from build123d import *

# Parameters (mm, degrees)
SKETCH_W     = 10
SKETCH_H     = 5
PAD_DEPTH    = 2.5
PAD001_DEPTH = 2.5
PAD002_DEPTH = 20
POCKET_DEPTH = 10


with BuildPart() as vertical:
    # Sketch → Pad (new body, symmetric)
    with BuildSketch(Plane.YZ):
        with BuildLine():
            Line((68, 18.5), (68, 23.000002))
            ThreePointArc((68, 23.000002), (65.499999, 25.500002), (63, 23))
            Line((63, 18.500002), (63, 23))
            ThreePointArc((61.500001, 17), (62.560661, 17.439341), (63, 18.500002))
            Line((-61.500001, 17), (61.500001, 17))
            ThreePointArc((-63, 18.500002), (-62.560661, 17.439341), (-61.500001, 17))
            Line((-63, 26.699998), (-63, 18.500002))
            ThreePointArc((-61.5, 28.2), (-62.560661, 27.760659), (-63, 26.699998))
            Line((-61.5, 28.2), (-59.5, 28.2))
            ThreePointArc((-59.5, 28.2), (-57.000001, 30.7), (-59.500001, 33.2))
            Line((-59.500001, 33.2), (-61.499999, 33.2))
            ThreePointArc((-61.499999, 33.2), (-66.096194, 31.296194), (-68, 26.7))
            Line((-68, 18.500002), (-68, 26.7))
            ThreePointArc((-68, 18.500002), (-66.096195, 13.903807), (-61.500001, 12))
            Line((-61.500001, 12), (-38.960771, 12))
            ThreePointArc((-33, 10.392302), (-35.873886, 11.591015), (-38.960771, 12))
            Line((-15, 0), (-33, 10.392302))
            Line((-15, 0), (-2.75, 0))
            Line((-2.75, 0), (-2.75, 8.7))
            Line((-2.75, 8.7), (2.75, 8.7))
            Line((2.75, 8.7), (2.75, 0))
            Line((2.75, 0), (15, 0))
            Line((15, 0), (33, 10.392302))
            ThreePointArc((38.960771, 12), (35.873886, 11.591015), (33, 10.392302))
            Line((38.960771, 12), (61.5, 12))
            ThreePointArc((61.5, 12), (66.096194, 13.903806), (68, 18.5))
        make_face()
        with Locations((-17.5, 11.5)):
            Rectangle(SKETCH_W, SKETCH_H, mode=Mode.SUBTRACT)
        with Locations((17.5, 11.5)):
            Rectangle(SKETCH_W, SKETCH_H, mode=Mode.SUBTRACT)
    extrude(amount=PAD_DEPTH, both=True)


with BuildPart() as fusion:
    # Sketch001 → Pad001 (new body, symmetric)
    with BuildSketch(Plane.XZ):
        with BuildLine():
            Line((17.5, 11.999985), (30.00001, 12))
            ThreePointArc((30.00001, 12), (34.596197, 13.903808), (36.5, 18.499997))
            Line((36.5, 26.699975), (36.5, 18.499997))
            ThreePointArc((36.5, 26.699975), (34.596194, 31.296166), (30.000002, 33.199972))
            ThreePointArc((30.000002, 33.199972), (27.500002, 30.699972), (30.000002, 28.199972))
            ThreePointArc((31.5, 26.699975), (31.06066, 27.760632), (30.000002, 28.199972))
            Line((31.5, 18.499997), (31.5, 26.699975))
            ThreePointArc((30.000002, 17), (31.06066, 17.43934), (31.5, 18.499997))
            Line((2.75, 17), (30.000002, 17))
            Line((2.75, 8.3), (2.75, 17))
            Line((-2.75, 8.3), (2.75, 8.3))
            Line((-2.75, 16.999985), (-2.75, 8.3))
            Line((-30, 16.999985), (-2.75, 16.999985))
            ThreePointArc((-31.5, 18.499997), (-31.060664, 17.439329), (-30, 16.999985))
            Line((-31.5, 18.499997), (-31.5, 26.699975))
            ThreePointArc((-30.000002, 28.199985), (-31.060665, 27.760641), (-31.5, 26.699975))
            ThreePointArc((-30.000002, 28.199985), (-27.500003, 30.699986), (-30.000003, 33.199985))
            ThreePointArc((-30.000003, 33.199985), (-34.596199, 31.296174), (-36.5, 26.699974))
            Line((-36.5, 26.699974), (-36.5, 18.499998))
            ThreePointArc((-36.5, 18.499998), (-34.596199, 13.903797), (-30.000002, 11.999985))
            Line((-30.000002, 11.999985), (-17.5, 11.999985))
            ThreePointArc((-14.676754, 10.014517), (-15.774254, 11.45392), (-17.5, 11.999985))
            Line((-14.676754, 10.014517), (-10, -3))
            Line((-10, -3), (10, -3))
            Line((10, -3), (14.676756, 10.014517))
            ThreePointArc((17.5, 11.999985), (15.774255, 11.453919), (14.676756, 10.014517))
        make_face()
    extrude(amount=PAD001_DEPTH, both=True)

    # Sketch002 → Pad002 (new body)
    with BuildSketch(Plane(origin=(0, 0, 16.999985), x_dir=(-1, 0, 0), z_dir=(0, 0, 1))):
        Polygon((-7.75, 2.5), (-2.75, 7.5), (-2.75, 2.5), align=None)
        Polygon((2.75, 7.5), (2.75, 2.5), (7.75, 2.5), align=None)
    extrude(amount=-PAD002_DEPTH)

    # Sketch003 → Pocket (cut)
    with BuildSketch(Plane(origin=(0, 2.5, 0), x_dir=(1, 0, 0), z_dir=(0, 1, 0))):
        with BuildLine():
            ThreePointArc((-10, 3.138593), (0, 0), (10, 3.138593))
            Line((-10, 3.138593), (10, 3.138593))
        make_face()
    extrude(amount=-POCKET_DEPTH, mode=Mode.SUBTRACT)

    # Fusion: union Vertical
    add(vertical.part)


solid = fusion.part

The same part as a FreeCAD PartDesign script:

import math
import FreeCAD as App
import Part
import Sketcher
Q = App.Units.Quantity


def add_polygon(sketch, points):
    """Adds a closed chain of lines whose ends are joined by coincident constraints."""
    first, n = sketch.GeometryCount, len(points)
    for a, b in zip(points, points[1:] + points[:1]):
        sketch.addGeometry(Part.LineSegment(App.Vector(*a, 0), App.Vector(*b, 0)), False)
    for i in range(n):
        sketch.addConstraint(Sketcher.Constraint("Coincident", first + i, 2, first + (i + 1) % n, 1))

doc = App.newDocument("Part")
params = doc.addObject("Spreadsheet::Sheet", "Params")
for row, (alias, value) in enumerate([
    ("sketch1_radius", "2.5 mm"),
    ("sketch1_radius2", "1.500001 mm"),
    ("sketch1_width", "123.000002 mm"),
    ("sketch1_width2", "2 mm"),
    ("sketch1_width3", "10 mm"),
    ("pad1_length", "5 mm"),
    ("sketch2_radius", "3 mm"),
    ("sketch2_radius2", "3.000001 mm"),
    ("sketch2_radius3", "6.499999 mm"),
    ("sketch2_radius4", "6.5 mm"),
    ("sketch2_radius5", "2.5 mm"),
    ("pad2_length", "5 mm"),
    ("sketch3_width", "5 mm"),
    ("pad3_length", "20 mm"),
    ("sketch4_radius", "17.500002 mm"),
    ("sketch4_width", "20 mm"),
    ("pocket1_length", "10 mm"),
], start=1):
    params.set(f"A{row}", alias)
    params.set(f"B{row}", "=" + value)
    params.setAlias(f"B{row}", alias)

body = doc.addObject("PartDesign::Body", "Body")

sketch1 = doc.addObject("Sketcher::SketchObject", "Sketch")
body.addObject(sketch1)
sketch1.AttachmentSupport = (doc.YZ_Plane, [""])
sketch1.MapMode = "FlatFace"
sketch1.addGeometry(Part.LineSegment(App.Vector(68, 18.5, 0), App.Vector(68, 23, 0)), False)
sketch1.addGeometry(Part.ArcOfCircle(Part.Circle(App.Vector(65.5, 23, 0), App.Vector(0, 0, 1), 2.5), math.radians(0), math.radians(180)), False)
sketch1.addGeometry(Part.LineSegment(App.Vector(63, 23, 0), App.Vector(63, 18.5, 0)), False)
sketch1.addGeometry(Part.ArcOfCircle(Part.Circle(App.Vector(61.5, 18.5, 0), App.Vector(0, 0, 1), 1.5), math.radians(-90), math.radians(0)), False)
sketch1.addGeometry(Part.LineSegment(App.Vector(61.5, 17, 0), App.Vector(-61.5, 17, 0)), False)
sketch1.addGeometry(Part.ArcOfCircle(Part.Circle(App.Vector(-61.5, 18.5, 0), App.Vector(0, 0, 1), 1.5), math.radians(180), math.radians(270)), False)
sketch1.addGeometry(Part.LineSegment(App.Vector(-63, 18.5, 0), App.Vector(-63, 26.7, 0)), False)
sketch1.addGeometry(Part.ArcOfCircle(Part.Circle(App.Vector(-61.5, 26.7, 0), App.Vector(0, 0, 1), 1.5), math.radians(90), math.radians(180)), False)
sketch1.addGeometry(Part.LineSegment(App.Vector(-61.5, 28.2, 0), App.Vector(-59.5, 28.2, 0)), False)
sketch1.addGeometry(Part.ArcOfCircle(Part.Circle(App.Vector(-59.5, 30.7, 0), App.Vector(0, 0, 1), 2.5), math.radians(-90), math.radians(90)), False)
sketch1.addGeometry(Part.LineSegment(App.Vector(-59.5, 33.2, 0), App.Vector(-61.5, 33.2, 0)), False)
sketch1.addGeometry(Part.ArcOfCircle(Part.Circle(App.Vector(-61.5, 26.7, 0), App.Vector(0, 0, 1), 6.5), math.radians(90), math.radians(180)), False)
sketch1.addGeometry(Part.LineSegment(App.Vector(-68, 26.7, 0), App.Vector(-68, 18.5, 0)), False)
sketch1.addGeometry(Part.ArcOfCircle(Part.Circle(App.Vector(-61.5, 18.5, 0), App.Vector(0, 0, 1), 6.5), math.radians(180), math.radians(270)), False)
sketch1.addGeometry(Part.LineSegment(App.Vector(-61.5, 12, 0), App.Vector(-39, 12, 0)), False)
sketch1.addGeometry(Part.ArcOfCircle(Part.Circle(App.Vector(-39, 0.1, 0), App.Vector(0, 0, 1), 11.9), math.radians(60), math.radians(90)), False)
sketch1.addGeometry(Part.LineSegment(App.Vector(-33, 10.4, 0), App.Vector(-15, 0, 0)), False)
sketch1.addGeometry(Part.LineSegment(App.Vector(-15, 0, 0), App.Vector(-2.8, 0, 0)), False)
sketch1.addGeometry(Part.LineSegment(App.Vector(-2.8, 0, 0), App.Vector(-2.8, 8.7, 0)), False)
sketch1.addGeometry(Part.LineSegment(App.Vector(-2.8, 8.7, 0), App.Vector(2.8, 8.7, 0)), False)
sketch1.addGeometry(Part.LineSegment(App.Vector(2.8, 8.7, 0), App.Vector(2.8, 0, 0)), False)
sketch1.addGeometry(Part.LineSegment(App.Vector(2.8, 0, 0), App.Vector(15, 0, 0)), False)
sketch1.addGeometry(Part.LineSegment(App.Vector(15, 0, 0), App.Vector(33, 10.4, 0)), False)
sketch1.addGeometry(Part.ArcOfCircle(Part.Circle(App.Vector(39, 0.1, 0), App.Vector(0, 0, 1), 11.9), math.radians(90), math.radians(120)), False)
sketch1.addGeometry(Part.LineSegment(App.Vector(39, 12, 0), App.Vector(61.5, 12, 0)), False)
sketch1.addGeometry(Part.ArcOfCircle(Part.Circle(App.Vector(61.5, 18.5, 0), App.Vector(0, 0, 1), 6.5), math.radians(-90), math.radians(0)), False)
add_polygon(sketch1, [(-12.5, 9), (-22.5, 9), (-22.5, 14), (-12.5, 14)])
add_polygon(sketch1, [(22.5, 9), (12.5, 9), (12.5, 14), (22.5, 14)])
sketch1.addConstraint([
    Sketcher.Constraint("Tangent", 0, 2, 1, 1),
    Sketcher.Constraint("Tangent", 1, 2, 2, 1),
    Sketcher.Constraint("Tangent", 2, 2, 3, 2),
    Sketcher.Constraint("Tangent", 3, 1, 4, 1),
    Sketcher.Constraint("Tangent", 4, 2, 5, 2),
    Sketcher.Constraint("Tangent", 5, 1, 6, 1),
    Sketcher.Constraint("Tangent", 6, 2, 7, 2),
    Sketcher.Constraint("Tangent", 7, 1, 8, 1),
    Sketcher.Constraint("Tangent", 8, 2, 9, 1),
    Sketcher.Constraint("Tangent", 9, 2, 10, 1),
    Sketcher.Constraint("Tangent", 10, 2, 11, 1),
    Sketcher.Constraint("Tangent", 11, 2, 12, 1),
    Sketcher.Constraint("Tangent", 12, 2, 13, 1),
    Sketcher.Constraint("Tangent", 13, 2, 14, 1),
    Sketcher.Constraint("Coincident", 14, 2, 15, 2),
    Sketcher.Constraint("Coincident", 15, 1, 16, 1),
    Sketcher.Constraint("Coincident", 16, 2, 17, 1),
    Sketcher.Constraint("Coincident", 17, 2, 18, 1),
    Sketcher.Constraint("Coincident", 18, 2, 19, 1),
    Sketcher.Constraint("Coincident", 19, 2, 20, 1),
    Sketcher.Constraint("Coincident", 20, 2, 21, 1),
    Sketcher.Constraint("Coincident", 21, 2, 22, 1),
    Sketcher.Constraint("Coincident", 22, 2, 23, 2),
    Sketcher.Constraint("Coincident", 23, 1, 24, 1),
    Sketcher.Constraint("Tangent", 24, 2, 25, 1),
    Sketcher.Constraint("Tangent", 25, 2, 0, 1),
    Sketcher.Constraint("Vertical", 0),
    Sketcher.Constraint("Vertical", 2),
    Sketcher.Constraint("Horizontal", 4),
    Sketcher.Constraint("Vertical", 6),
    Sketcher.Constraint("Horizontal", 8),
    Sketcher.Constraint("Horizontal", 10),
    Sketcher.Constraint("Vertical", 12),
    Sketcher.Constraint("Horizontal", 14),
    Sketcher.Constraint("Horizontal", 17),
    Sketcher.Constraint("Vertical", 18),
    Sketcher.Constraint("Horizontal", 19),
    Sketcher.Constraint("Vertical", 20),
    Sketcher.Constraint("Horizontal", 21),
    Sketcher.Constraint("Horizontal", 24),
    Sketcher.Constraint("Horizontal", 26),
    Sketcher.Constraint("Vertical", 27),
    Sketcher.Constraint("Horizontal", 28),
    Sketcher.Constraint("Vertical", 29),
    Sketcher.Constraint("Horizontal", 30),
    Sketcher.Constraint("Vertical", 31),
    Sketcher.Constraint("Horizontal", 32),
    Sketcher.Constraint("Vertical", 33),
    Sketcher.Constraint("Coincident", 11, 3, 7, 3),
    Sketcher.Constraint("Coincident", 13, 3, 5, 3),
    Sketcher.Constraint("Coincident", 25, 3, 3, 3),
    Sketcher.Constraint("Equal", 3, 5),
    Sketcher.Constraint("Equal", 5, 7),
    Sketcher.Constraint("Equal", 1, 9),
    Sketcher.Constraint("Equal", 15, 23),
    Sketcher.Constraint("Symmetric", 17, 2, 20, 2, -1, 1),
    Sketcher.Constraint("Symmetric", 16, 2, 21, 2, -2),
    Sketcher.Constraint("Symmetric", 15, 1, 22, 2, -2),
    Sketcher.Constraint("Symmetric", 29, 2, 30, 2, -2),
    Sketcher.Constraint("Symmetric", 27, 2, 32, 2, -2),
    Sketcher.Constraint("Equal", 14, 24),
    Sketcher.Constraint("Radius", 1, 2.5),
    Sketcher.Constraint("Radius", 3, 1.500001),
    Sketcher.Constraint("DistanceX", 4, 2, 4, 1, 123.000002),
    Sketcher.Constraint("DistanceX", 8, 1, 8, 2, 2.0),
    Sketcher.Constraint("DistanceX", 26, 2, 26, 1, 10.0),
    Sketcher.Constraint("DistanceY", 27, 1, 27, 2, 5.0),
    Sketcher.Constraint("Angle", 16, Q("-29.999993 deg")),
    Sketcher.Constraint("DistanceX", 19, 1, 19, 2, 5.5),
    Sketcher.Constraint("DistanceY", 0, 1, 0, 2, 4.500002),
    Sketcher.Constraint("DistanceY", 12, 2, 12, 1, 8.199998),
    Sketcher.Constraint("DistanceY", 18, 1, 18, 2, 8.7),
    Sketcher.Constraint("DistanceY", -1, 1, 1, 3, 23.000002),
    Sketcher.Constraint("DistanceX", -1, 1, 0, 2, 68.0),
    Sketcher.Constraint("DistanceX", 15, 1, -1, 1, 33.0),
    Sketcher.Constraint("DistanceX", 16, 2, -1, 1, 15.0),
    Sketcher.Constraint("DistanceY", -1, 1, 26, 2, 9.0),
    Sketcher.Constraint("DistanceX", 26, 2, -1, 1, 22.5),
    Sketcher.Constraint("Radius", 15, 11.854214),
    Sketcher.Constraint("DistanceX", 14, 1, 14, 2, 22.53923),
])
sketch1.setExpression("Constraints[69]", "Params.sketch1_radius")
sketch1.setExpression("Constraints[70]", "Params.sketch1_radius2")
sketch1.setExpression("Constraints[71]", "Params.sketch1_width")
sketch1.setExpression("Constraints[72]", "Params.sketch1_width2")
sketch1.setExpression("Constraints[73]", "Params.sketch1_width3")
pad1 = doc.addObject("PartDesign::Pad", "Pad")
body.addObject(pad1)
pad1.Profile = sketch1
pad1.setExpression("Length", "Params.pad1_length")
pad1.Midplane = True
body2 = doc.addObject("PartDesign::Body", "Body001")
body2.AllowCompound = True

sketch2 = doc.addObject("Sketcher::SketchObject", "Sketch001")
body2.addObject(sketch2)
sketch2.AttachmentSupport = (doc.getObject("XZ_Plane001"), [""])
sketch2.MapMode = "FlatFace"
sketch2.addGeometry([
    Part.LineSegment(App.Vector(17.5, 11.999985, 0), App.Vector(30.00001, 12, 0)),
    Part.ArcOfCircle(Part.Circle(App.Vector(30.000001, 18.499999, 0), App.Vector(0, 0, 1), 6.499999), math.radians(-89.999925), math.radians(-0.000014)),
    Part.LineSegment(App.Vector(36.5, 18.499997, 0), App.Vector(36.5, 26.699975, 0)),
    Part.ArcOfCircle(Part.Circle(App.Vector(30, 26.699972, 0), App.Vector(0, 0, 1), 6.5), math.radians(0.000029), math.radians(89.99998)),
    Part.ArcOfCircle(Part.Circle(App.Vector(30.000002, 30.699972, 0), App.Vector(0, 0, 1), 2.5), math.radians(90), math.radians(270)),
    Part.ArcOfCircle(Part.Circle(App.Vector(29.999999, 26.699971, 0), App.Vector(0, 0, 1), 1.500001), math.radians(0.000137), math.radians(89.999901)),
    Part.LineSegment(App.Vector(31.5, 26.699975, 0), App.Vector(31.5, 18.499997, 0)),
    Part.ArcOfCircle(Part.Circle(App.Vector(29.999999, 18.500001, 0), App.Vector(0, 0, 1), 1.500001), math.radians(-89.999901), math.radians(-0.000137)),
    Part.LineSegment(App.Vector(30.000002, 17, 0), App.Vector(2.75, 17, 0)),
    Part.LineSegment(App.Vector(2.75, 17, 0), App.Vector(2.75, 8.3, 0)),
    Part.LineSegment(App.Vector(2.75, 8.3, 0), App.Vector(-2.75, 8.3, 0)),
    Part.LineSegment(App.Vector(-2.75, 8.3, 0), App.Vector(-2.75, 16.999985, 0)),
    Part.LineSegment(App.Vector(-2.75, 16.999985, 0), App.Vector(-30, 16.999985, 0)),
    Part.ArcOfCircle(Part.Circle(App.Vector(-29.999999, 18.499986, 0), App.Vector(0, 0, 1), 1.500001), math.radians(179.999564), math.radians(269.999978)),
    Part.LineSegment(App.Vector(-31.5, 18.499997, 0), App.Vector(-31.5, 26.699975, 0)),
    Part.ArcOfCircle(Part.Circle(App.Vector(-30.000001, 26.699986, 0), App.Vector(0, 0, 1), 1.499999), math.radians(90.000034), math.radians(180.000425)),
    Part.ArcOfCircle(Part.Circle(App.Vector(-30.000003, 30.699985, 0), App.Vector(0, 0, 1), 2.5), math.radians(-89.999977), math.radians(90)),
    Part.ArcOfCircle(Part.Circle(App.Vector(-30, 26.699985, 0), App.Vector(0, 0, 1), 6.5), math.radians(90.000029), math.radians(180.000095)),
    Part.LineSegment(App.Vector(-36.5, 26.699974, 0), App.Vector(-36.5, 18.499998, 0)),
    Part.ArcOfCircle(Part.Circle(App.Vector(-29.999998, 18.499987, 0), App.Vector(0, 0, 1), 6.500002), math.radians(179.999903), math.radians(269.999965)),
    Part.LineSegment(App.Vector(-30.000002, 11.999985, 0), App.Vector(-17.5, 11.999985, 0)),
    Part.ArcOfCircle(Part.Circle(App.Vector(-17.500001, 8.999985, 0), App.Vector(0, 0, 1), 3), math.radians(19.765862), math.radians(89.999981)),
    Part.LineSegment(App.Vector(-14.676754, 10.014517, 0), App.Vector(-10, -3, 0)),
    Part.LineSegment(App.Vector(-10, -3, 0), App.Vector(10, -3, 0)),
    Part.LineSegment(App.Vector(10, -3, 0), App.Vector(14.676756, 10.014517, 0)),
    Part.ArcOfCircle(Part.Circle(App.Vector(17.500004, 8.999984, 0), App.Vector(0, 0, 1), 3.000001), math.radians(90.000072), math.radians(160.234123)),
], False)
sketch2.addConstraint([
    Sketcher.Constraint("Coincident", 0, 2, 1, 1),
    Sketcher.Constraint("Coincident", 1, 2, 2, 1),
    Sketcher.Constraint("Coincident", 2, 2, 3, 1),
    Sketcher.Constraint("Coincident", 3, 2, 4, 1),
    Sketcher.Constraint("Coincident", 4, 2, 5, 2),
    Sketcher.Constraint("Coincident", 5, 1, 6, 1),
    Sketcher.Constraint("Coincident", 6, 2, 7, 2),
    Sketcher.Constraint("Coincident", 7, 1, 8, 1),
    Sketcher.Constraint("Coincident", 8, 2, 9, 1),
    Sketcher.Constraint("Coincident", 9, 2, 10, 1),
    Sketcher.Constraint("Coincident", 10, 2, 11, 1),
    Sketcher.Constraint("Coincident", 11, 2, 12, 1),
    Sketcher.Constraint("Coincident", 12, 2, 13, 2),
    Sketcher.Constraint("Coincident", 13, 1, 14, 1),
    Sketcher.Constraint("Coincident", 14, 2, 15, 2),
    Sketcher.Constraint("Coincident", 15, 1, 16, 1),
    Sketcher.Constraint("Coincident", 16, 2, 17, 1),
    Sketcher.Constraint("Coincident", 17, 2, 18, 1),
    Sketcher.Constraint("Coincident", 18, 2, 19, 1),
    Sketcher.Constraint("Coincident", 19, 2, 20, 1),
    Sketcher.Constraint("Coincident", 20, 2, 21, 2),
    Sketcher.Constraint("Coincident", 21, 1, 22, 1),
    Sketcher.Constraint("Coincident", 22, 2, 23, 1),
    Sketcher.Constraint("Coincident", 23, 2, 24, 1),
    Sketcher.Constraint("Coincident", 24, 2, 25, 2),
    Sketcher.Constraint("Coincident", 25, 1, 0, 1),
    Sketcher.Constraint("Vertical", 2),
    Sketcher.Constraint("Vertical", 6),
    Sketcher.Constraint("Horizontal", 8),
    Sketcher.Constraint("Vertical", 9),
    Sketcher.Constraint("Horizontal", 10),
    Sketcher.Constraint("Vertical", 11),
    Sketcher.Constraint("Horizontal", 12),
    Sketcher.Constraint("Vertical", 14),
    Sketcher.Constraint("Vertical", 18),
    Sketcher.Constraint("Horizontal", 20),
    Sketcher.Constraint("Horizontal", 23),
    Sketcher.Constraint("Coincident", 5, 3, 3, 3),
    Sketcher.Constraint("Coincident", 7, 3, 1, 3),
    Sketcher.Constraint("Coincident", 17, 3, 15, 3),
    Sketcher.Constraint("Coincident", 19, 3, 13, 3),
    Sketcher.Constraint("Radius", 21, 3.0),
    Sketcher.Constraint("Radius", 25, 3.000001),
    Sketcher.Constraint("Radius", 1, 6.499999),
    Sketcher.Constraint("Radius", 3, 6.5),
    Sketcher.Constraint("Radius", 4, 2.5),
    Sketcher.Constraint("Radius", 13, 1.500001),
    Sketcher.Constraint("Radius", 15, 1.499999),
    Sketcher.Constraint("Radius", 16, 2.5),
    Sketcher.Constraint("DistanceX", 23, 1, 23, 2, 20.0),
    Sketcher.Constraint("DistanceX", 10, 2, 10, 1, 5.5),
    Sketcher.Constraint("DistanceX", 20, 1, 20, 2, 12.500002),
    Sketcher.Constraint("DistanceY", 9, 2, 9, 1, 8.7),
    Sketcher.Constraint("DistanceX", -1, 1, 1, 3, 30.000001),
    Sketcher.Constraint("DistanceX", -1, 1, 4, 3, 30.000002),
    Sketcher.Constraint("DistanceX", 13, 3, -1, 1, 29.999999),
    Sketcher.Constraint("DistanceY", -1, 1, 0, 2, 12.0),
    Sketcher.Constraint("DistanceX", -1, 1, 3, 2, 30.000002),
    Sketcher.Constraint("DistanceX", -1, 1, 4, 2, 30.000002),
    Sketcher.Constraint("DistanceX", -1, 1, 7, 1, 30.000002),
    Sketcher.Constraint("DistanceX", 12, 2, -1, 1, 30.0),
    Sketcher.Constraint("DistanceX", 15, 1, -1, 1, 30.000002),
    Sketcher.Constraint("DistanceX", 19, 2, -1, 1, 30.000002),
    Sketcher.Constraint("DistanceX", 22, 2, -1, 1, 10.0),
    Sketcher.Constraint("DistanceY", 22, 2, -1, 1, 3.0),
    Sketcher.Constraint("DistanceY", 25, 3, 11, 2, 8.000001),
    Sketcher.Constraint("DistanceX", 8, 2, 8, 1, 27.250002),
    Sketcher.Constraint("DistanceX", 21, 3, -1, 1, 17.500001),
    Sketcher.Constraint("DistanceY", -1, 1, 18, 2, 18.499998),
    Sketcher.Constraint("DistanceX", -1, 1, 25, 1, 17.5),
    Sketcher.Constraint("DistanceY", 13, 3, 15, 3, 8.200001),
    Sketcher.Constraint("DistanceX", 25, 3, 4, 3, 12.499998),
    Sketcher.Constraint("Distance", 0, 12.50001),
    Sketcher.Constraint("DistanceY", 2, 1, 2, 2, 8.199978),
    Sketcher.Constraint("DistanceY", 6, 2, 6, 1, 8.199978),
    Sketcher.Constraint("DistanceY", 11, 1, 11, 2, 8.699985),
    Sketcher.Constraint("DistanceY", 14, 1, 14, 2, 8.199978),
    Sketcher.Constraint("DistanceY", 18, 2, 18, 1, 8.199976),
    Sketcher.Constraint("DistanceY", -1, 1, 3, 3, 26.699972),
    Sketcher.Constraint("DistanceY", 13, 1, 15, 3, 8.199989),
    Sketcher.Constraint("DistanceY", 21, 3, 21, 1, 1.014532),
    Sketcher.Constraint("Distance", 24, 13.829306),
    Sketcher.Constraint("DistanceX", 16, 3, -1, 1, 30.000003),
    Sketcher.Constraint("DistanceY", -1, 1, 1, 2, 18.499997),
    Sketcher.Constraint("DistanceY", -1, 1, 5, 1, 26.699975),
    Sketcher.Constraint("DistanceX", 16, 2, -1, 1, 30.000003),
])
sketch2.setExpression("Constraints[41]", "Params.sketch2_radius")
sketch2.setExpression("Constraints[42]", "Params.sketch2_radius2")
sketch2.setExpression("Constraints[43]", "Params.sketch2_radius3")
sketch2.setExpression("Constraints[44]", "Params.sketch2_radius4")
sketch2.setExpression("Constraints[45]", "Params.sketch2_radius5")
pad2 = doc.addObject("PartDesign::Pad", "Pad001")
body2.addObject(pad2)
pad2.Profile = sketch2
pad2.setExpression("Length", "Params.pad2_length")
pad2.Midplane = True

sketch3 = doc.addObject("Sketcher::SketchObject", "Sketch002")
body2.addObject(sketch3)
sketch3.AttachmentSupport = (doc.getObject("XY_Plane001"), [""])
sketch3.MapMode = "FlatFace"
sketch3.AttachmentOffset = App.Placement(App.Vector(0, 0, 16.999985), App.Rotation())
add_polygon(sketch3, [(3, -8), (8, -2), (3, -2)])
add_polygon(sketch3, [(-3, -8), (-3, -2), (-8, -2)])
sketch3.addConstraint([
    Sketcher.Constraint("Horizontal", 1),
    Sketcher.Constraint("Vertical", 2),
    Sketcher.Constraint("Vertical", 3),
    Sketcher.Constraint("Horizontal", 4),
    Sketcher.Constraint("Symmetric", 1, 2, 3, 2, -2),
    Sketcher.Constraint("Perpendicular", 0, 5),
    Sketcher.Constraint("Horizontal", 2, 2, 5, 2),
    Sketcher.Constraint("Equal", 1, 4),
    Sketcher.Constraint("DistanceX", 1, 2, 1, 1, 5.0),
    Sketcher.Constraint("DistanceY", 0, 2, -1, 1, 2.5),
    Sketcher.Constraint("DistanceX", 3, 2, 1, 2, 5.5),
])
sketch3.setExpression("Constraints[14]", "Params.sketch3_width")
pad3 = doc.addObject("PartDesign::Pad", "Pad002")
body2.addObject(pad3)
pad3.Profile = sketch3
pad3.setExpression("Length", "Params.pad3_length")
pad3.Reversed = True

sketch4 = doc.addObject("Sketcher::SketchObject", "Sketch003")
body2.addObject(sketch4)
sketch4.AttachmentSupport = (doc.getObject("XZ_Plane001"), [""])
sketch4.MapMode = "FlatFace"
sketch4.AttachmentOffset = App.Placement(App.Vector(0, 0, -2.5), App.Rotation())
sketch4.addGeometry([
    Part.ArcOfCircle(Part.Circle(App.Vector(0, -18, 0), App.Vector(0, 0, 1), 18), math.radians(55), math.radians(125)),
    Part.LineSegment(App.Vector(10, -3, 0), App.Vector(-10, -3, 0)),
], False)
sketch4.addConstraint([
    Sketcher.Constraint("Coincident", 0, 1, 1, 1),
    Sketcher.Constraint("Coincident", 1, 2, 0, 2),
    Sketcher.Constraint("Horizontal", 1),
    Sketcher.Constraint("PointOnObject", 0, 3, -2),
    Sketcher.Constraint("Radius", 0, 17.500002),
    Sketcher.Constraint("DistanceX", 1, 2, 1, 1, 20.0),
    Sketcher.Constraint("DistanceY", 0, 3, -1, 1, 17.500002),
])
sketch4.setExpression("Constraints[4]", "Params.sketch4_radius")
sketch4.setExpression("Constraints[5]", "Params.sketch4_width")
pocket1 = doc.addObject("PartDesign::Pocket", "Pocket")
body2.addObject(pocket1)
pocket1.Profile = sketch4
pocket1.setExpression("Length", "Params.pocket1_length")
pocket1.Reversed = True
doc.recompute()

boolean = doc.addObject("PartDesign::Boolean", "Boolean")
body2.addObject(boolean)
boolean.Type = "Fuse"
boolean.addObjects([body])

doc.recompute()
